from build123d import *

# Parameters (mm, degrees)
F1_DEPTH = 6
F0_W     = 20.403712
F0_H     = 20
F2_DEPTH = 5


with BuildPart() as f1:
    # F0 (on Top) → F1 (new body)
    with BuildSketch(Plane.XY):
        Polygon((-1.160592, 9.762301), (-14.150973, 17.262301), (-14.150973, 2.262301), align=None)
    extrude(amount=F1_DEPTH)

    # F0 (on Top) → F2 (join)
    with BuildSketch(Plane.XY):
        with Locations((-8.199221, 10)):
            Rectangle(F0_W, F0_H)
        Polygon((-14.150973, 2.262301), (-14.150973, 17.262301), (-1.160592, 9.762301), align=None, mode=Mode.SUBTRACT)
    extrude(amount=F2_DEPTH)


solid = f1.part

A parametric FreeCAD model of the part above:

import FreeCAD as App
import Part
import Sketcher
Q = App.Units.Quantity

doc = App.newDocument("Part")
body = doc.addObject("PartDesign::Body", "Body")

# Sketch on XY plane
sketch1 = body.newObject("Sketcher::SketchObject", "Sketch")
sketch1.AttachmentSupport = (doc.getObject("XY_Plane"), [""])
sketch1.MapMode = "FlatFace"
sketch1.addGeometry([
    Part.LineSegment(App.Vector(-1, 10, 0), App.Vector(-14, 17, 0)),
    Part.LineSegment(App.Vector(-14, 17, 0), App.Vector(-14, 2, 0)),
    Part.LineSegment(App.Vector(-14, 2, 0), App.Vector(-1, 10, 0)),
], False)
sketch1.addConstraint([
    Sketcher.Constraint("Coincident", 0, 2, 1, 1),
    Sketcher.Constraint("Coincident", 1, 2, 2, 1),
    Sketcher.Constraint("Coincident", 2, 2, 0, 1),
    Sketcher.Constraint("Vertical", 1),
    Sketcher.Constraint("Equal", 0, 2),
    Sketcher.Constraint("DistanceY", 1, 2, 1, 1, Q("15 mm")),
    Sketcher.Constraint("Angle", 0, Q("150 deg")),
    Sketcher.Constraint("DistanceY", -1, 1, 0, 2, Q("17.262301 mm")),
    Sketcher.Constraint("DistanceX", 0, 2, -1, 1, Q("14.150973 mm")),
])
pad1 = body.newObject("PartDesign::Pad", "Pad")
pad1.Profile = sketch1
pad1.Length = 6

# Sketch on XY plane
sketch2 = body.newObject("Sketcher::SketchObject", "Sketch001")
sketch2.AttachmentSupport = (doc.getObject("XY_Plane"), [""])
sketch2.MapMode = "FlatFace"
sketch2.addGeometry([
    Part.LineSegment(App.Vector(-18, 20, 0), App.Vector(-18, 0, 0)),  # 0
    Part.LineSegment(App.Vector(-18, 0, 0), App.Vector(2, 0, 0)),  # 1
    Part.LineSegment(App.Vector(2, 0, 0), App.Vector(2, 20, 0)),  # 2
    Part.LineSegment(App.Vector(2, 20, 0), App.Vector(-18, 20, 0)),  # 3
    Part.LineSegment(App.Vector(-1, 10, 0), App.Vector(-14, 2, 0)),  # 4
    Part.LineSegment(App.Vector(-14, 2, 0), App.Vector(-14, 17, 0)),  # 5
    Part.LineSegment(App.Vector(-14, 17, 0), App.Vector(-1, 10, 0)),  # 6
], False)
sketch2.addConstraint([
    Sketcher.Constraint("Coincident", 0, 2, 1, 1),
    Sketcher.Constraint("Coincident", 1, 2, 2, 1),
    Sketcher.Constraint("Coincident", 2, 2, 3, 1),
    Sketcher.Constraint("Coincident", 3, 2, 0, 1),
    Sketcher.Constraint("Coincident", 4, 2, 5, 1),
    Sketcher.Constraint("Coincident", 5, 2, 6, 1),
    Sketcher.Constraint("Coincident", 6, 2, 4, 1),
    Sketcher.Constraint("Vertical", 0),
    Sketcher.Constraint("Horizontal", 1),
    Sketcher.Constraint("Vertical", 2),
    Sketcher.Constraint("Horizontal", 3),
    Sketcher.Constraint("Vertical", 5),
    Sketcher.Constraint("PointOnObject", 0, 2, -1),
    Sketcher.Constraint("Equal", 4, 6),
    Sketcher.Constraint("DistanceY", 0, 2, 0, 1, Q("20 mm")),
    Sketcher.Constraint("DistanceY", 5, 1, 5, 2, Q("15 mm")),
    Sketcher.Constraint("Angle", 4, Q("-150 deg")),
    Sketcher.Constraint("DistanceY", -1, 1, 4, 2, Q("2.262301 mm")),
    Sketcher.Constraint("DistanceX", 1, 1, 1, 2, Q("20.403712 mm")),
    Sketcher.Constraint("DistanceX", 4, 2, 1, 2, Q("16.153608 mm")),
    Sketcher.Constraint("DistanceX", 0, 2, -1, 1, Q("18.401077 mm")),
])
pad2 = body.newObject("PartDesign::Pad", "Pad001")
pad2.Profile = sketch2
pad2.Length = 5

doc.recompute()
